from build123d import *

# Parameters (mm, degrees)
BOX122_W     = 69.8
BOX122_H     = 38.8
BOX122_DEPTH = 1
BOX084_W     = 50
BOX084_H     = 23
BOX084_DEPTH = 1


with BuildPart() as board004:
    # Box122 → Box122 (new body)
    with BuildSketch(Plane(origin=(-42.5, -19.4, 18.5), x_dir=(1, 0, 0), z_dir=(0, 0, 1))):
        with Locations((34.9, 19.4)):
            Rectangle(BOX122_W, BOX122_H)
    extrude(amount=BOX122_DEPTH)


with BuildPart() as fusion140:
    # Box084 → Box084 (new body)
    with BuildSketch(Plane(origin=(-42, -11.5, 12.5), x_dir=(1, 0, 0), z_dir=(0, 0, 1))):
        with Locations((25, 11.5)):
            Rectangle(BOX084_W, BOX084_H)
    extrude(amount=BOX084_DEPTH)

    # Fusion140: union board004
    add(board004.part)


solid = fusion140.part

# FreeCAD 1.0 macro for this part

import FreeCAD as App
import Part
import Sketcher

V = App.Vector

doc = App.newDocument("Part")
body = doc.addObject("PartDesign::Body", "Body")

# Sketch on XY plane
sketch1 = body.newObject("Sketcher::SketchObject", "Sketch")
sketch1.AttachmentSupport = (doc.getObject("XY_Plane"), [""])
sketch1.MapMode = "FlatFace"
sketch1.AttachmentOffset = App.Placement(V(0, 0, 18.5), App.Rotation())
sketch1.addGeometry([
    Part.LineSegment(V(-42, 19, 0), V(-42, -19, 0)),
    Part.LineSegment(V(-42, -19, 0), V(27, -19, 0)),
    Part.LineSegment(V(27, -19, 0), V(27, 19, 0)),
    Part.LineSegment(V(27, 19, 0), V(-42, 19, 0)),
], False)
sketch1.addConstraint([
    Sketcher.Constraint("Coincident", 0, 2, 1, 1),
    Sketcher.Constraint("Coincident", 1, 2, 2, 1),
    Sketcher.Constraint("Coincident", 2, 2, 3, 1),
    Sketcher.Constraint("Coincident", 3, 2, 0, 1),
    Sketcher.Constraint("Vertical", 0),
    Sketcher.Constraint("Horizontal", 1),
    Sketcher.Constraint("Vertical", 2),
    Sketcher.Constraint("Horizontal", 3),
    Sketcher.Constraint("DistanceX", 1, 1, 1, 2, 69.8),
    Sketcher.Constraint("DistanceY", 0, 2, 0, 1, 38.8),
    Sketcher.Constraint("DistanceX", 0, 2, -1, 1, 42.5),
    Sketcher.Constraint("DistanceY", 0, 2, -1, 1, 19.4),
])
pad1 = body.newObject("PartDesign::Pad", "Pad")
pad1.Profile = sketch1
pad1.Length = 1
body2 = doc.addObject("PartDesign::Body", "Body001")
body2.AllowCompound = True

# Sketch on XY plane
sketch2 = body2.newObject("Sketcher::SketchObject", "Sketch001")
sketch2.AttachmentSupport = (doc.getObject("XY_Plane001"), [""])
sketch2.MapMode = "FlatFace"
sketch2.AttachmentOffset = App.Placement(V(0, 0, 12.5), App.Rotation())
sketch2.addGeometry([
    Part.LineSegment(V(-42, 12, 0), V(-42, -12, 0)),
    Part.LineSegment(V(-42, -12, 0), V(8, -12, 0)),
    Part.LineSegment(V(8, -12, 0), V(8, 12, 0)),
    Part.LineSegment(V(8, 12, 0), V(-42, 12, 0)),
], False)
sketch2.addConstraint([
    Sketcher.Constraint("Coincident", 0, 2, 1, 1),
    Sketcher.Constraint("Coincident", 1, 2, 2, 1),
    Sketcher.Constraint("Coincident", 2, 2, 3, 1),
    Sketcher.Constraint("Coincident", 3, 2, 0, 1),
    Sketcher.Constraint("Vertical", 0),
    Sketcher.Constraint("Horizontal", 1),
    Sketcher.Constraint("Vertical", 2),
    Sketcher.Constraint("Horizontal", 3),
    Sketcher.Constraint("DistanceX", 1, 1, 1, 2, 50.0),
    Sketcher.Constraint("DistanceY", 0, 2, 0, 1, 23.0),
    Sketcher.Constraint("DistanceX", 0, 2, -1, 1, 42.0),
    Sketcher.Constraint("DistanceY", 0, 2, -1, 1, 11.5),
])
pad2 = body2.newObject("PartDesign::Pad", "Pad001")
pad2.Profile = sketch2
pad2.Length = 1
doc.recompute()

boolean = body2.newObject("PartDesign::Boolean", "Boolean")
boolean.Type = "Fuse"
boolean.addObjects([body])

doc.recompute()
